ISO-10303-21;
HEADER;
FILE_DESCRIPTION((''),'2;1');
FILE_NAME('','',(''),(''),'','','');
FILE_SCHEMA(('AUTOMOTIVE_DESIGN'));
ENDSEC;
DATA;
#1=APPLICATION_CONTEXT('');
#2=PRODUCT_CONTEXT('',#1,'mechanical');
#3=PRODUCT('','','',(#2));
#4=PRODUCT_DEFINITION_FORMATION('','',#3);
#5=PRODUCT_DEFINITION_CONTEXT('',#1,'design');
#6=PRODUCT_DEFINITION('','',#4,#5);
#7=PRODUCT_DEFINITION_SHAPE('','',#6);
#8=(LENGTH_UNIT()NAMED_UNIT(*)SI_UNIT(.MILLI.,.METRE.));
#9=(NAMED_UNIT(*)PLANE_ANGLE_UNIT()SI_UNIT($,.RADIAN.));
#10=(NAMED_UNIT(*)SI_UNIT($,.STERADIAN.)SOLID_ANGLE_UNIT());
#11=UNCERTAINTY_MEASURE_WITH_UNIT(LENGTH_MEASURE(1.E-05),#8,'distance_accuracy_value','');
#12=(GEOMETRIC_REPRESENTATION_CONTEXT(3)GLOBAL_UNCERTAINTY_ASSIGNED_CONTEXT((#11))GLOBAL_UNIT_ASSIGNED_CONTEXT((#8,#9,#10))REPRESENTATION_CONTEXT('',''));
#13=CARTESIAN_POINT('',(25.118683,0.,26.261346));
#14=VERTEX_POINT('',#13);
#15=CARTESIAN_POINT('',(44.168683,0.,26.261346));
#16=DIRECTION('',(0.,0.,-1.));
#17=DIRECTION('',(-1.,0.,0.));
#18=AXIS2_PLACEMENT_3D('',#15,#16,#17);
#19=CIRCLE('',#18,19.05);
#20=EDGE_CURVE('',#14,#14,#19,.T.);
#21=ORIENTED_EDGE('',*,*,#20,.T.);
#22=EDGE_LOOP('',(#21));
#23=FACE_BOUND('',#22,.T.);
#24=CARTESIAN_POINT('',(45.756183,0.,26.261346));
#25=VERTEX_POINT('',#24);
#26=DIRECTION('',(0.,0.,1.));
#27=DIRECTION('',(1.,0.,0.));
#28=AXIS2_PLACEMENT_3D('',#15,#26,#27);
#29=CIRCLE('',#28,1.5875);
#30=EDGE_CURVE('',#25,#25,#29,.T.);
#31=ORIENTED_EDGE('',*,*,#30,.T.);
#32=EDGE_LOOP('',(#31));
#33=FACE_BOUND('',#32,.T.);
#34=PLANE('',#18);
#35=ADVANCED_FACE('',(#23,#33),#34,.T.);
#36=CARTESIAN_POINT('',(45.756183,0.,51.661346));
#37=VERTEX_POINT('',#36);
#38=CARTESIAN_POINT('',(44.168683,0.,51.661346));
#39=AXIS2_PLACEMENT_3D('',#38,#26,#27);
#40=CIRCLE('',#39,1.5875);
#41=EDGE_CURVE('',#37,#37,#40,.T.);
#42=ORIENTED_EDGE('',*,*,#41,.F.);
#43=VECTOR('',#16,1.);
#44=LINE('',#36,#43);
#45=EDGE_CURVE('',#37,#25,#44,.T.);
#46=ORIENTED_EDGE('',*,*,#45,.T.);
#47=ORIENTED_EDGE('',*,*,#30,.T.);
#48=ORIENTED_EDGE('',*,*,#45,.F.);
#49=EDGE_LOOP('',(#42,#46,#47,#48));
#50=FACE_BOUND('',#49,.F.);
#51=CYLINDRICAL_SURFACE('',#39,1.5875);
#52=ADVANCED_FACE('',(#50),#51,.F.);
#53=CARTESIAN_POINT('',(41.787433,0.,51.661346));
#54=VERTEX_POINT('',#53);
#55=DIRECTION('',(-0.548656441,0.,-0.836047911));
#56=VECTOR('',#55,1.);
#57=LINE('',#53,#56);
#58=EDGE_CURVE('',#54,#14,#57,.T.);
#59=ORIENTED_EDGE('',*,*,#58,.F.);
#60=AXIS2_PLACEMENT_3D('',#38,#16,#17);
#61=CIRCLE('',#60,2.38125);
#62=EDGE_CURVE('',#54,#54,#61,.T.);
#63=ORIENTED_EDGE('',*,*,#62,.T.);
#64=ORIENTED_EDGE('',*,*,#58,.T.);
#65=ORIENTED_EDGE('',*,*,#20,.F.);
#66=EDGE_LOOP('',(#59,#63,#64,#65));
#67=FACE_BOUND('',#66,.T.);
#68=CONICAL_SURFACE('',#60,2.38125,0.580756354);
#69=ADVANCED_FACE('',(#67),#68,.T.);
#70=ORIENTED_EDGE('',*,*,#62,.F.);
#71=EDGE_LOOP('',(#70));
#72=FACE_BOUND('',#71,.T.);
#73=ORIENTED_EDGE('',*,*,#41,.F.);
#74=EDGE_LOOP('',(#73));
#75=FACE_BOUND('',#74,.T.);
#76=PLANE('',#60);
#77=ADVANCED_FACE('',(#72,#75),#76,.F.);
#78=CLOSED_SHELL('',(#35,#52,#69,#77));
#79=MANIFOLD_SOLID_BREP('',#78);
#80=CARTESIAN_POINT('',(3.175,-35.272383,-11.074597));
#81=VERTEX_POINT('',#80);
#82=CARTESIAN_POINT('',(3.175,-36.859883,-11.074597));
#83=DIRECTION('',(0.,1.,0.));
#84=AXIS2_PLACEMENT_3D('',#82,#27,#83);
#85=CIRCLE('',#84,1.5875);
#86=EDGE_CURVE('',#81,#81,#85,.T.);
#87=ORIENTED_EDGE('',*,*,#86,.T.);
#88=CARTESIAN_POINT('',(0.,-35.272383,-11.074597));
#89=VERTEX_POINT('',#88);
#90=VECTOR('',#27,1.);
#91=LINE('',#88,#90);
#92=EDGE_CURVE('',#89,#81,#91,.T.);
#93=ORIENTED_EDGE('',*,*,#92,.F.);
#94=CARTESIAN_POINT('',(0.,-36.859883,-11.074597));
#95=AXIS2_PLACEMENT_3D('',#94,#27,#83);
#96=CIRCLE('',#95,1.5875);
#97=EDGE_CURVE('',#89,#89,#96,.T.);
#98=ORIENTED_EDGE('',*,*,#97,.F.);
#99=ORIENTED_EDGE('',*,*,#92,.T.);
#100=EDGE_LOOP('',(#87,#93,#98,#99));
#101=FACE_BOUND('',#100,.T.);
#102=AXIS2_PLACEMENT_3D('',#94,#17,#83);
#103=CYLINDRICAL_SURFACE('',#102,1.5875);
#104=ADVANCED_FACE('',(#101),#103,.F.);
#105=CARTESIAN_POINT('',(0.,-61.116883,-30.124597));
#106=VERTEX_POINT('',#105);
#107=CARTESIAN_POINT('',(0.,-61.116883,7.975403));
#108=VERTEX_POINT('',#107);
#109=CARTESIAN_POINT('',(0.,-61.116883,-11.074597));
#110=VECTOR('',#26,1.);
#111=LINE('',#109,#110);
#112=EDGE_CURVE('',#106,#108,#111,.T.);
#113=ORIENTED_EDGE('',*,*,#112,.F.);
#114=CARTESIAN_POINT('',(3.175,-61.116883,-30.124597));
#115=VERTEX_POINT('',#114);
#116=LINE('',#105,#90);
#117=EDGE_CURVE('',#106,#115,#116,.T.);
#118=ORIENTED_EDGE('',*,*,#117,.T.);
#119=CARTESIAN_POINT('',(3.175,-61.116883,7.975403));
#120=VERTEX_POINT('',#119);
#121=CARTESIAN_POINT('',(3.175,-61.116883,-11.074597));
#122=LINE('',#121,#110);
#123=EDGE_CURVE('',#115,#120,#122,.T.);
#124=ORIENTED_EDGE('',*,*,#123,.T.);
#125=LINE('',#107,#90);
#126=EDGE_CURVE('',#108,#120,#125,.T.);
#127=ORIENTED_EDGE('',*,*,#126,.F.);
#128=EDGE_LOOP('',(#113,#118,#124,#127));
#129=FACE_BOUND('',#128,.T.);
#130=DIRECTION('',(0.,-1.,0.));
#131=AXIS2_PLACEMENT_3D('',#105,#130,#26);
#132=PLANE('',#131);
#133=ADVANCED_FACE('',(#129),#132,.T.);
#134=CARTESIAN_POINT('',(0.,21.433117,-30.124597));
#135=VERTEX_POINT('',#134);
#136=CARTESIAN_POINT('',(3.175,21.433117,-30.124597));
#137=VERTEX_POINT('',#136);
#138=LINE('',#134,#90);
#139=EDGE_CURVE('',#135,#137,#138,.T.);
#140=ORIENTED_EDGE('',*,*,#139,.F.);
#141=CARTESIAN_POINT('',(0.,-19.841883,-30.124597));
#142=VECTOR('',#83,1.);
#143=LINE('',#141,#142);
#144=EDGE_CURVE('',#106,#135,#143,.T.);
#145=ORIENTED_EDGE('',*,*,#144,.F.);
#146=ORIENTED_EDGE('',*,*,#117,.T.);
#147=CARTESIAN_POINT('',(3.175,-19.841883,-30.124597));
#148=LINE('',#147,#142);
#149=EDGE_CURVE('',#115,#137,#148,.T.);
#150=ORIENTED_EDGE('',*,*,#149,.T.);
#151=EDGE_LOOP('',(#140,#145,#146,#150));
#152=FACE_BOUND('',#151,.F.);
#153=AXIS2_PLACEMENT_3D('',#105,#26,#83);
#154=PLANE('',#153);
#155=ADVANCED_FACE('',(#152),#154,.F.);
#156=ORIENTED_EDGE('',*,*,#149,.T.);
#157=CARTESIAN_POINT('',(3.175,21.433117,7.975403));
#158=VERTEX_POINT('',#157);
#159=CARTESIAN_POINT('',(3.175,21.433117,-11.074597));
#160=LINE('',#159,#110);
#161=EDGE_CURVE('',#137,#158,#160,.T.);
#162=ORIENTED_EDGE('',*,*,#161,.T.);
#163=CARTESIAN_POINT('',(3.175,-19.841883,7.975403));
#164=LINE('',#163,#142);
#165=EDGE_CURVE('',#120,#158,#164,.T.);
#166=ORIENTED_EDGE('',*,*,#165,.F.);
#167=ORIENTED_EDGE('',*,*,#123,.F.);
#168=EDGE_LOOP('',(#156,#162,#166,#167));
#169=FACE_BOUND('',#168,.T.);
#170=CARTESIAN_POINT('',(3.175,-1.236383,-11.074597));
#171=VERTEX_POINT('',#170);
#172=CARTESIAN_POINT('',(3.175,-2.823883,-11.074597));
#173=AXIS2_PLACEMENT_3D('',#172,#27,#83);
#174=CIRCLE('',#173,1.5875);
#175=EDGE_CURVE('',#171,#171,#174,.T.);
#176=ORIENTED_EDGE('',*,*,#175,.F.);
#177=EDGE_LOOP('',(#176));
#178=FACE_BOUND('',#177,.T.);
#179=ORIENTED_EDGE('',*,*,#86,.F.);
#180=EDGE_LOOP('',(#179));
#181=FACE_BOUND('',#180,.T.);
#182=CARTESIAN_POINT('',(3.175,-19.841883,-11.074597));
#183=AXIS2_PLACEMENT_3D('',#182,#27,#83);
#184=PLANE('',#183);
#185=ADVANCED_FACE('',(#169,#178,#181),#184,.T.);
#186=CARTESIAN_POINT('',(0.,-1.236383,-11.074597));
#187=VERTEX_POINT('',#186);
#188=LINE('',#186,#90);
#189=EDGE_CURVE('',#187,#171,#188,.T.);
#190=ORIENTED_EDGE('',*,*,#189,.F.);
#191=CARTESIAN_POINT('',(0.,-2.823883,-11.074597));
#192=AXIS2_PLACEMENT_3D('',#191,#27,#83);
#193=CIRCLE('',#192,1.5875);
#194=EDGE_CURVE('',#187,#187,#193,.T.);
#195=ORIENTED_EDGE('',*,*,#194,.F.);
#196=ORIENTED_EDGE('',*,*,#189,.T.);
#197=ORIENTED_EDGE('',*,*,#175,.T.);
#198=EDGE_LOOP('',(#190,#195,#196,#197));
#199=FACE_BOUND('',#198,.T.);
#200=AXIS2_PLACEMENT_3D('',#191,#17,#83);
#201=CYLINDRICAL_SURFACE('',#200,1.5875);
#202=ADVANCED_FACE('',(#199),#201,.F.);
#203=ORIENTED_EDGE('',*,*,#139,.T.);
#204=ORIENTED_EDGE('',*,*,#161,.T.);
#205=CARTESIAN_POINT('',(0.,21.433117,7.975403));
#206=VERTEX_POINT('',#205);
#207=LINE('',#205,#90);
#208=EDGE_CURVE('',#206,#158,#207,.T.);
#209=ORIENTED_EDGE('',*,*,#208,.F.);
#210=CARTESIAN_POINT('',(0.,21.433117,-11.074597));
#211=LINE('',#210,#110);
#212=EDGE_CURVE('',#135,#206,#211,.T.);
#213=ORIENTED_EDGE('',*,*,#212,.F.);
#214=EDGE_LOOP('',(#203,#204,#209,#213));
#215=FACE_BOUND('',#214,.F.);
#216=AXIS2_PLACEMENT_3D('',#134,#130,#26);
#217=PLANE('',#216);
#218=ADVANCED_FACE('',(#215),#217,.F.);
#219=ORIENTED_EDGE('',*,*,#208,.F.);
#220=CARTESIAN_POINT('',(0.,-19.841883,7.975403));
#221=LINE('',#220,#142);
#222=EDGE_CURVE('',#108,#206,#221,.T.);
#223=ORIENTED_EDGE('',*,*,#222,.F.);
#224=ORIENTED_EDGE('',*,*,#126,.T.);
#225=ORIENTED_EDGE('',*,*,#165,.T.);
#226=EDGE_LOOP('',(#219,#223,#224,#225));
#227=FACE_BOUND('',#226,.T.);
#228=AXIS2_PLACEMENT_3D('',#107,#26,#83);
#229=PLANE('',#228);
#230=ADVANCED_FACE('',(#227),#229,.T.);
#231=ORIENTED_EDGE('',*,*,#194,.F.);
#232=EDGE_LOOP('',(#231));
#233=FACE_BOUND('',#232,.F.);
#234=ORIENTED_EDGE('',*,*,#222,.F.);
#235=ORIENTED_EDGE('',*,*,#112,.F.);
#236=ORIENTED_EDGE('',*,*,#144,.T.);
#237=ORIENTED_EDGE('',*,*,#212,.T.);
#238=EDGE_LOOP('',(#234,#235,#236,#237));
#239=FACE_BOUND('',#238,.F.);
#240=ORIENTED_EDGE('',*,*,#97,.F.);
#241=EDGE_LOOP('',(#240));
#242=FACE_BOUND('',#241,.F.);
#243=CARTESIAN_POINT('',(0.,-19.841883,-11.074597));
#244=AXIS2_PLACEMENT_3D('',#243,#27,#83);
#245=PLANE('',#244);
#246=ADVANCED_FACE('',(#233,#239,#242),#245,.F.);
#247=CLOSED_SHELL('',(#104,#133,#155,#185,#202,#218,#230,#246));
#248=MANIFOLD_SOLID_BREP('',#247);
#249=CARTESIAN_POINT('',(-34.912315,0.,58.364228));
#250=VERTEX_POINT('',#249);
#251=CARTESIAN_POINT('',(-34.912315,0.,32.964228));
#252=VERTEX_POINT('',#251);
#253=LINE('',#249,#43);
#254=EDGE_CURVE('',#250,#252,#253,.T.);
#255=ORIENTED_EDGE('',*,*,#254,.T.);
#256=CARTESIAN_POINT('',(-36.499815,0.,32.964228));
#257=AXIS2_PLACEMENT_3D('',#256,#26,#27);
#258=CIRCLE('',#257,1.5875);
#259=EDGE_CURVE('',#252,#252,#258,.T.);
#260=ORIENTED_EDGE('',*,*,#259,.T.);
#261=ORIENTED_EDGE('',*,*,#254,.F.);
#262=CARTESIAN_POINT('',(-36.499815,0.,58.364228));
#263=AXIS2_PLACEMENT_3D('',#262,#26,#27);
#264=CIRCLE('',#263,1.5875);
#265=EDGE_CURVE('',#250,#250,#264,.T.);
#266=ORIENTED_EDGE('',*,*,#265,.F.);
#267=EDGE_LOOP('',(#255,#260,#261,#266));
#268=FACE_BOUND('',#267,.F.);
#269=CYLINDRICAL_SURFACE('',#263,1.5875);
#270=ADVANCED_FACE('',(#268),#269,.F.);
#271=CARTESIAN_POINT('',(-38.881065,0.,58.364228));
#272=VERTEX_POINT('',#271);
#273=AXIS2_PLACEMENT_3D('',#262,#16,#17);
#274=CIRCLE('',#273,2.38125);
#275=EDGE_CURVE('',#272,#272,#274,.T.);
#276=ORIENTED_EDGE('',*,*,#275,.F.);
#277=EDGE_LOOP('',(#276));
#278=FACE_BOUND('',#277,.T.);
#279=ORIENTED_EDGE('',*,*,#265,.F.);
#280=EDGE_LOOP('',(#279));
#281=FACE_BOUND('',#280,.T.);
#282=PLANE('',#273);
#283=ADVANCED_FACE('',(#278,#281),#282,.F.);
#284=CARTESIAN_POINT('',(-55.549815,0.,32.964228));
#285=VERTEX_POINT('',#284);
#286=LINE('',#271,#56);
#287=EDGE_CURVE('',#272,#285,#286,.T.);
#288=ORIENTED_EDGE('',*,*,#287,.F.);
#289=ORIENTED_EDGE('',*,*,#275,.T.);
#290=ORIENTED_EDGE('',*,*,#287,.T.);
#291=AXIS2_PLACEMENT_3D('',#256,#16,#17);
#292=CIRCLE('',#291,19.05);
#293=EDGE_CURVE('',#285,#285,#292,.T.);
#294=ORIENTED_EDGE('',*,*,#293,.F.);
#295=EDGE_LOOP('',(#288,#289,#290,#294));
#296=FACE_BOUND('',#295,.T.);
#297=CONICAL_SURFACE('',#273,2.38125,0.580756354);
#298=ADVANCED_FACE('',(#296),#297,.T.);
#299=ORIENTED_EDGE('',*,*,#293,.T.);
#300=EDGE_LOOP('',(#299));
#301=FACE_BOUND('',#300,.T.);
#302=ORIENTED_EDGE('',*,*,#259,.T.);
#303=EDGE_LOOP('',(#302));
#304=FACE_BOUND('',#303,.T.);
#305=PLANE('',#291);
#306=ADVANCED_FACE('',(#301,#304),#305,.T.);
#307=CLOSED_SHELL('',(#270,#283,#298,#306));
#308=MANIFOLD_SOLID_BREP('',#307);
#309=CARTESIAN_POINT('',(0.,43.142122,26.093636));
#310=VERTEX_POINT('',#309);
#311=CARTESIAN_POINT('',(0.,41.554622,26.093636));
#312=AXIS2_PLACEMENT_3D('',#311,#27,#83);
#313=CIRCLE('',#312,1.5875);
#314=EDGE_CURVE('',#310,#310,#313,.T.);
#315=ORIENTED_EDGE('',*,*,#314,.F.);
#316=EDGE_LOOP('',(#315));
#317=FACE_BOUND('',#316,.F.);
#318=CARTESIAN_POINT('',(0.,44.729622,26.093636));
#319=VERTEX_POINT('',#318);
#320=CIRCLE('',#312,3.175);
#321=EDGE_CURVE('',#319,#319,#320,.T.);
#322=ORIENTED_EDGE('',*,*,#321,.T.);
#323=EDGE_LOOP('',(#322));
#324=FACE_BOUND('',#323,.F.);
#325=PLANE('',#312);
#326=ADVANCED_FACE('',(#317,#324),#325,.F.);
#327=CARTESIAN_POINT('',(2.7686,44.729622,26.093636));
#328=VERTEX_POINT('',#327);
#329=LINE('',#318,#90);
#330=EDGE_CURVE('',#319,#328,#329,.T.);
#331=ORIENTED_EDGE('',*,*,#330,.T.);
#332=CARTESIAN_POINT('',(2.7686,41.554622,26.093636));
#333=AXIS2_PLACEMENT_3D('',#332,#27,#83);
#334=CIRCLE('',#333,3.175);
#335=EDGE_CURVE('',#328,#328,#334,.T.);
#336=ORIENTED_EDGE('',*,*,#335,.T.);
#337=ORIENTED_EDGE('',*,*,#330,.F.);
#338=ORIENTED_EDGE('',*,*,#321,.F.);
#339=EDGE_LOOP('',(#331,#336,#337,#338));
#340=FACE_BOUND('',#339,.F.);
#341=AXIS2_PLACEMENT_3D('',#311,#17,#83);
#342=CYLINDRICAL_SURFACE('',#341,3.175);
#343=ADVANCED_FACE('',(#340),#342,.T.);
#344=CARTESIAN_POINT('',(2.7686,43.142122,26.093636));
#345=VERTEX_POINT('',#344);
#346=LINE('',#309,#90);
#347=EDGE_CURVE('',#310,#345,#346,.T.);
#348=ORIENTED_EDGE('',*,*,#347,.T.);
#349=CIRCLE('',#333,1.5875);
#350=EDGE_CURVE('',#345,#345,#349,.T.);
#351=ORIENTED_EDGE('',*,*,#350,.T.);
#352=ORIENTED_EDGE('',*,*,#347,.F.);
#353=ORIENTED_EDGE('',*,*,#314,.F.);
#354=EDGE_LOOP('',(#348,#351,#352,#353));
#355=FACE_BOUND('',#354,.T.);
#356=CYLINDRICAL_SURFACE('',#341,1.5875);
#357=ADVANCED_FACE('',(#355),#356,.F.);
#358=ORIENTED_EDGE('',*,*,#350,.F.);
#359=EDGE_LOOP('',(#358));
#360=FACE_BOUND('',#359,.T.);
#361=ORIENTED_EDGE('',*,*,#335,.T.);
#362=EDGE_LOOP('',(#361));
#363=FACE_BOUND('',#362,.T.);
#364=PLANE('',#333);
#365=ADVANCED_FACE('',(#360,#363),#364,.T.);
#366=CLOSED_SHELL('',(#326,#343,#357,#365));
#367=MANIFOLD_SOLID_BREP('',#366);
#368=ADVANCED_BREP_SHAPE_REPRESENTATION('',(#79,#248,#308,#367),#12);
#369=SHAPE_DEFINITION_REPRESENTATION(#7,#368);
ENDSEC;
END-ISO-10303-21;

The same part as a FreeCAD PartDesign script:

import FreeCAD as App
import Part
import Sketcher
from FreeCAD import Vector
Q = App.Units.Quantity

doc = App.newDocument("Part")
params = doc.addObject("Spreadsheet::Sheet", "Params")
for row, (alias, value) in enumerate([
    ("sketch1_height", "1 in"),
    ("sketch1_width", "0.75 in"),
    ("sketch1_width2", "0.09375 in"),
    ("revolution_angle", "360 deg"),
    ("sketch2_diameter", "0.125 in"),
    ("pocket1_length", "1.02 in"),
    ("sketch3_height", "1 in"),
    ("sketch3_width", "0.75 in"),
    ("sketch3_width2", "0.09375 in"),
    ("revolution2_angle", "360 deg"),
    ("sketch4_diameter", "0.125 in"),
    ("pocket2_length", "1 in"),
    ("sketch5_diameter", "0.25 in"),
    ("sketch5_diameter2", "0.125 in"),
    ("pad1_length", "0.109 in"),
    ("sketch6_diameter", "0.125 in"),
    ("sketch6_height", "1.5 in"),
    ("sketch6_width", "3.25 in"),
    ("pad2_length", "0.125 in"),
], start=1):
    params.set(f"A{row}", alias)
    params.set(f"B{row}", "=" + value)
    params.setAlias(f"B{row}", alias)

body = doc.addObject("PartDesign::Body", "Body")

# Sketch on XZ plane
sketch1 = body.newObject("Sketcher::SketchObject", "Sketch")
sketch1.AttachmentSupport = (doc.getObject("XZ_Plane"), [""])
sketch1.MapMode = "FlatFace"
sketch1.addGeometry([
    Part.LineSegment(Vector(-36.5, 58.4, 0), Vector(-38.9, 58.4, 0)),
    Part.LineSegment(Vector(-38.9, 58.4, 0), Vector(-55.5, 33, 0)),
    Part.LineSegment(Vector(-55.5, 33, 0), Vector(-36.5, 33, 0)),
    Part.LineSegment(Vector(-36.5, 33, 0), Vector(-36.5, 58.4, 0)),
], False)
sketch1.addGeometry(Part.LineSegment(Vector(-36.5, 58.4, 0), Vector(-36.5, 33, 0)), True)  # axis
sketch1.addConstraint([
    Sketcher.Constraint("Coincident", 0, 2, 1, 1),
    Sketcher.Constraint("Coincident", 1, 2, 2, 1),
    Sketcher.Constraint("Coincident", 2, 2, 3, 1),
    Sketcher.Constraint("Coincident", 3, 2, 0, 1),
    Sketcher.Constraint("Horizontal", 0),
    Sketcher.Constraint("Horizontal", 2),
    Sketcher.Constraint("Vertical", 3),
    Sketcher.Constraint("Vertical", 4),
    Sketcher.Constraint("Coincident", 4, 1, 3, 2),
    Sketcher.Constraint("Horizontal", 1, 2, 4, 2),
    Sketcher.Constraint("DistanceY", 3, 1, 3, 2, Q("1 in")),
    Sketcher.Constraint("DistanceX", 2, 1, 2, 2, Q("0.75 in")),
    Sketcher.Constraint("DistanceX", 0, 2, 0, 1, Q("0.09375 in")),
    Sketcher.Constraint("DistanceX", 0, 2, -1, 1, Q("38.881065 mm")),
    Sketcher.Constraint("DistanceY", -1, 1, 0, 2, Q("58.364228 mm")),
])
sketch1.setExpression("Constraints[10]", "Params.sketch1_height")
sketch1.setExpression("Constraints[11]", "Params.sketch1_width")
sketch1.setExpression("Constraints[12]", "Params.sketch1_width2")
revolution = body.newObject("PartDesign::Revolution", "Revolution")
revolution.Profile = sketch1
revolution.ReferenceAxis = (sketch1, ["Axis0"])
revolution.setExpression("Angle", "Params.revolution_angle")

# Sketch on XY plane
sketch2 = body.newObject("Sketcher::SketchObject", "Sketch001")
sketch2.AttachmentSupport = (doc.getObject("XY_Plane"), [""])
sketch2.MapMode = "FlatFace"
sketch2.AttachmentOffset = App.Placement(Vector(0, 0, 58.364228), App.Rotation())
sketch2.addGeometry(Part.Circle(Vector(-36.5, 0, 0), Vector(0, 0, 1), 1.6), False)
sketch2.addConstraint([
    Sketcher.Constraint("PointOnObject", 0, 3, -1),
    Sketcher.Constraint("Diameter", 0, Q("0.125 in")),
    Sketcher.Constraint("DistanceX", 0, 3, -1, 1, Q("36.499815 mm")),
])
sketch2.setExpression("Constraints[1]", "Params.sketch2_diameter")
pocket1 = body.newObject("PartDesign::Pocket", "Pocket")
pocket1.Profile = sketch2
pocket1.setExpression("Length", "Params.pocket1_length")
body2 = doc.addObject("PartDesign::Body", "Body001")

# Sketch on XZ plane
sketch3 = body2.newObject("Sketcher::SketchObject", "Sketch002")
sketch3.AttachmentSupport = (doc.getObject("XZ_Plane001"), [""])
sketch3.MapMode = "FlatFace"
sketch3.addGeometry([
    Part.LineSegment(Vector(44.2, 26.3, 0), Vector(44.2, 51.7, 0)),
    Part.LineSegment(Vector(44.2, 51.7, 0), Vector(41.8, 51.7, 0)),
    Part.LineSegment(Vector(41.8, 51.7, 0), Vector(25.1, 26.3, 0)),
    Part.LineSegment(Vector(25.1, 26.3, 0), Vector(44.2, 26.3, 0)),
], False)
sketch3.addGeometry(Part.LineSegment(Vector(44.2, 51.7, 0), Vector(44.2, 26.3, 0)), True)  # axis
sketch3.addConstraint([
    Sketcher.Constraint("Coincident", 0, 2, 1, 1),
    Sketcher.Constraint("Coincident", 1, 2, 2, 1),
    Sketcher.Constraint("Coincident", 2, 2, 3, 1),
    Sketcher.Constraint("Coincident", 3, 2, 0, 1),
    Sketcher.Constraint("Vertical", 0),
    Sketcher.Constraint("Horizontal", 1),
    Sketcher.Constraint("Horizontal", 3),
    Sketcher.Constraint("Vertical", 4),
    Sketcher.Constraint("Coincident", 4, 1, 0, 2),
    Sketcher.Constraint("Horizontal", 2, 2, 4, 2),
    Sketcher.Constraint("DistanceY", 0, 1, 0, 2, Q("1 in")),
    Sketcher.Constraint("DistanceX", 3, 1, 3, 2, Q("0.75 in")),
    Sketcher.Constraint("DistanceX", 1, 2, 1, 1, Q("0.09375 in")),
    Sketcher.Constraint("DistanceX", -1, 1, 0, 2, Q("44.168683 mm")),
    Sketcher.Constraint("DistanceY", -1, 1, 0, 2, Q("51.661346 mm")),
])
sketch3.setExpression("Constraints[10]", "Params.sketch3_height")
sketch3.setExpression("Constraints[11]", "Params.sketch3_width")
sketch3.setExpression("Constraints[12]", "Params.sketch3_width2")
revolution2 = body2.newObject("PartDesign::Revolution", "Revolution001")
revolution2.Profile = sketch3
revolution2.ReferenceAxis = (sketch3, ["Axis0"])
revolution2.setExpression("Angle", "Params.revolution2_angle")

# Sketch on XY plane
sketch4 = body2.newObject("Sketcher::SketchObject", "Sketch003")
sketch4.AttachmentSupport = (doc.getObject("XY_Plane001"), [""])
sketch4.MapMode = "FlatFace"
sketch4.AttachmentOffset = App.Placement(Vector(0, 0, 51.661346), App.Rotation())
sketch4.addGeometry(Part.Circle(Vector(44.2, 0, 0), Vector(0, 0, 1), 1.6), False)
sketch4.addConstraint([
    Sketcher.Constraint("PointOnObject", 0, 3, -1),
    Sketcher.Constraint("Diameter", 0, Q("0.125 in")),
    Sketcher.Constraint("DistanceX", -1, 1, 0, 3, Q("44.168683 mm")),
])
sketch4.setExpression("Constraints[1]", "Params.sketch4_diameter")
pocket2 = body2.newObject("PartDesign::Pocket", "Pocket001")
pocket2.Profile = sketch4
pocket2.setExpression("Length", "Params.pocket2_length")
body3 = doc.addObject("PartDesign::Body", "Body002")

# Sketch on YZ plane
sketch5 = body3.newObject("Sketcher::SketchObject", "Sketch004")
sketch5.AttachmentSupport = (doc.getObject("YZ_Plane002"), [""])
sketch5.MapMode = "FlatFace"
sketch5.addGeometry([
    Part.Circle(Vector(41.6, 26.1, 0), Vector(0, 0, 1), 3.2),
    Part.Circle(Vector(41.6, 26.1, 0), Vector(0, 0, 1), 1.6),
], False)
sketch5.addConstraint([
    Sketcher.Constraint("Coincident", 1, 3, 0, 3),
    Sketcher.Constraint("Diameter", 0, Q("0.25 in")),
    Sketcher.Constraint("Diameter", 1, Q("0.125 in")),
    Sketcher.Constraint("DistanceX", -1, 1, 0, 3, Q("41.554622 mm")),
    Sketcher.Constraint("DistanceY", -1, 1, 0, 3, Q("26.093636 mm")),
])
sketch5.setExpression("Constraints[1]", "Params.sketch5_diameter")
sketch5.setExpression("Constraints[2]", "Params.sketch5_diameter2")
pad1 = body3.newObject("PartDesign::Pad", "Pad")
pad1.Profile = sketch5
pad1.setExpression("Length", "Params.pad1_length")
body4 = doc.addObject("PartDesign::Body", "Body003")

# Sketch on YZ plane
sketch6 = body4.newObject("Sketcher::SketchObject", "Sketch005")
sketch6.AttachmentSupport = (doc.getObject("YZ_Plane003"), [""])
sketch6.MapMode = "FlatFace"
sketch6.addGeometry([
    Part.LineSegment(Vector(-61.1, 8, 0), Vector(-61.1, -30.1, 0)),  # 0
    Part.LineSegment(Vector(-61.1, -30.1, 0), Vector(21.4, -30.1, 0)),  # 1
    Part.LineSegment(Vector(21.4, -30.1, 0), Vector(21.4, 8, 0)),  # 2
    Part.LineSegment(Vector(21.4, 8, 0), Vector(-61.1, 8, 0)),  # 3
    Part.Circle(Vector(-36.9, -11.1, 0), Vector(0, 0, 1), 1.6),  # 4
    Part.Circle(Vector(-2.8, -11.1, 0), Vector(0, 0, 1), 1.6),  # 5
], False)
sketch6.addConstraint([
    Sketcher.Constraint("Coincident", 0, 2, 1, 1),
    Sketcher.Constraint("Coincident", 1, 2, 2, 1),
    Sketcher.Constraint("Coincident", 2, 2, 3, 1),
    Sketcher.Constraint("Coincident", 3, 2, 0, 1),
    Sketcher.Constraint("Vertical", 0),
    Sketcher.Constraint("Horizontal", 1),
    Sketcher.Constraint("Vertical", 2),
    Sketcher.Constraint("Horizontal", 3),
    Sketcher.Constraint("Equal", 4, 5),
    Sketcher.Constraint("Horizontal", 4, 3, 5, 3),
    Sketcher.Constraint("Diameter", 4, Q("0.125 in")),
    Sketcher.Constraint("DistanceY", 0, 2, 0, 1, Q("1.5 in")),
    Sketcher.Constraint("DistanceX", 1, 1, 1, 2, Q("3.25 in")),
    Sketcher.Constraint("DistanceX", 4, 3, 5, 3, Q("1.34 in")),
    Sketcher.Constraint("DistanceY", 0, 2, 4, 3, Q("0.75 in")),
    Sketcher.Constraint("DistanceX", 0, 2, 4, 3, Q("0.955 in")),
    Sketcher.Constraint("DistanceX", 4, 3, -1, 1, Q("36.859883 mm")),
    Sketcher.Constraint("DistanceY", 4, 3, -1, 1, Q("11.074597 mm")),
])
sketch6.setExpression("Constraints[10]", "Params.sketch6_diameter")
sketch6.setExpression("Constraints[11]", "Params.sketch6_height")
sketch6.setExpression("Constraints[12]", "Params.sketch6_width")
pad2 = body4.newObject("PartDesign::Pad", "Pad001")
pad2.Profile = sketch6
pad2.setExpression("Length", "Params.pad2_length")

doc.recompute()
